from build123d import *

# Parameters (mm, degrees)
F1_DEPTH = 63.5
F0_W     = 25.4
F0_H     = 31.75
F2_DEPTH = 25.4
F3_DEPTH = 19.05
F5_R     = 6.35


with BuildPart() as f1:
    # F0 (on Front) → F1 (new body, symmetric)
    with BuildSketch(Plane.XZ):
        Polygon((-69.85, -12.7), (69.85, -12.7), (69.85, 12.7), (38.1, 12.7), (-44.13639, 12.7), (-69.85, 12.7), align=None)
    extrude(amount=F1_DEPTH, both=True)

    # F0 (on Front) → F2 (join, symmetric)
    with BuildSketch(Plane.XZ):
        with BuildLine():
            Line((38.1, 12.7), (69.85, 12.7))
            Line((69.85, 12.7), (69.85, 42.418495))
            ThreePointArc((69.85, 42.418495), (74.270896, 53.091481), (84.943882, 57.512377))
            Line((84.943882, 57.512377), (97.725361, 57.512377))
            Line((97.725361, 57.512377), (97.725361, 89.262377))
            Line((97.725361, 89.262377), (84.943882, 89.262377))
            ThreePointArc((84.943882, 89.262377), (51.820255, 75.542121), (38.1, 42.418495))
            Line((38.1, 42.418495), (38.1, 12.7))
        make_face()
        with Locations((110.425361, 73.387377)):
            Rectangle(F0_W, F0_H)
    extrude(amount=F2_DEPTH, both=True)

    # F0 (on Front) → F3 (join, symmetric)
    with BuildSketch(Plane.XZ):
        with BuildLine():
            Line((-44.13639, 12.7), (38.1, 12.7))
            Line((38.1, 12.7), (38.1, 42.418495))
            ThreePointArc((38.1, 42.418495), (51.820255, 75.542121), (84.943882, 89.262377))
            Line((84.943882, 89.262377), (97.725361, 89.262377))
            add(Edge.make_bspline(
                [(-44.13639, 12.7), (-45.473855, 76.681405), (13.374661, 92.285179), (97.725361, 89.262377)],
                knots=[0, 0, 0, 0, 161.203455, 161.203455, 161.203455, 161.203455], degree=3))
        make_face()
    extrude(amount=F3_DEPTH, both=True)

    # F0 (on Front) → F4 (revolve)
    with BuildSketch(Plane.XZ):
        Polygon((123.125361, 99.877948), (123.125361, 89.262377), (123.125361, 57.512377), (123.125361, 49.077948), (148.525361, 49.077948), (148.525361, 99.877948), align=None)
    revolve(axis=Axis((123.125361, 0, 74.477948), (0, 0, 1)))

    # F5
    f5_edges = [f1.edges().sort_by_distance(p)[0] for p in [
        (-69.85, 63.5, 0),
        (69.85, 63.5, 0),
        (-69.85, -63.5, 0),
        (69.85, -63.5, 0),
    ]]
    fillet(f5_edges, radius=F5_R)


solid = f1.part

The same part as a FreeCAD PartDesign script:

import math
import FreeCAD as App
import Part
import Sketcher

V = App.Vector
Q = App.Units.Quantity


def edges_at(feature, points):
    """Names of the edges that pass closest to the given points."""
    edges = feature.Shape.Edges
    near = lambda p: min(range(len(edges)), key=lambda i: edges[i].distToShape(Part.Vertex(*p))[0])
    return sorted({f"Edge{near(p) + 1}" for p in points})


def add_polygon(sketch, points):
    """Adds a closed chain of lines whose ends are joined by coincident constraints."""
    first, n = sketch.GeometryCount, len(points)
    for a, b in zip(points, points[1:] + points[:1]):
        sketch.addGeometry(Part.LineSegment(App.Vector(*a, 0), App.Vector(*b, 0)), False)
    for i in range(n):
        sketch.addConstraint(Sketcher.Constraint("Coincident", first + i, 2, first + (i + 1) % n, 1))

doc = App.newDocument("Part")
body = doc.addObject("PartDesign::Body", "Body")

# Sketch on XZ plane
sketch1 = doc.addObject("Sketcher::SketchObject", "Sketch")
body.addObject(sketch1)
sketch1.AttachmentSupport = (doc.XZ_Plane, [""])
sketch1.MapMode = "FlatFace"
add_polygon(sketch1, [(-70, -13), (70, -13), (70, 13), (-70, 13)])  # lines 0-3
sketch1.addConstraint([
    Sketcher.Constraint("Horizontal", 0),
    Sketcher.Constraint("Vertical", 1),
    Sketcher.Constraint("Horizontal", 2),
    Sketcher.Constraint("Vertical", 3),
    Sketcher.Constraint("Symmetric", 0, 2, 2, 2, -1, 1),
    Sketcher.Constraint("DistanceY", 1, 1, 1, 2, Q("1 in")),
    Sketcher.Constraint("DistanceX", 0, 1, 0, 2, Q("5.5 in")),
])
pad1 = doc.addObject("PartDesign::Pad", "Pad")
body.addObject(pad1)
pad1.Profile = sketch1
pad1.Length = Q("5 in")
pad1.Midplane = True

# Sketch on XZ plane
sketch2 = doc.addObject("Sketcher::SketchObject", "Sketch001")
body.addObject(sketch2)
sketch2.AttachmentSupport = (doc.XZ_Plane, [""])
sketch2.MapMode = "FlatFace"
sketch2.addGeometry([
    Part.LineSegment(V(38, 13, 0), V(70, 13, 0)),  # 0
    Part.LineSegment(V(70, 13, 0), V(70, 42, 0)),  # 1
    Part.ArcOfCircle(Part.Circle(V(85, 42, 0), V(0, 0, 1), 15), math.radians(90), math.radians(180)),  # 2
    Part.LineSegment(V(85, 58, 0), V(123, 58, 0)),  # 3
    Part.LineSegment(V(123, 58, 0), V(123, 89, 0)),  # 4
    Part.LineSegment(V(123, 89, 0), V(85, 89, 0)),  # 5
    Part.ArcOfCircle(Part.Circle(V(85, 42, 0), V(0, 0, 1), 47), math.radians(90), math.radians(180)),  # 6
    Part.LineSegment(V(38, 42, 0), V(38, 13, 0)),  # 7
], False)
sketch2.addConstraint([
    Sketcher.Constraint("Coincident", 0, 2, 1, 1),
    Sketcher.Constraint("Tangent", 1, 2, 2, 2),
    Sketcher.Constraint("Tangent", 2, 1, 3, 1),
    Sketcher.Constraint("Coincident", 3, 2, 4, 1),
    Sketcher.Constraint("Coincident", 4, 2, 5, 1),
    Sketcher.Constraint("Tangent", 5, 2, 6, 1),
    Sketcher.Constraint("Tangent", 6, 2, 7, 1),
    Sketcher.Constraint("Coincident", 7, 2, 0, 1),
    Sketcher.Constraint("Horizontal", 0),
    Sketcher.Constraint("Vertical", 1),
    Sketcher.Constraint("Horizontal", 3),
    Sketcher.Constraint("Vertical", 4),
    Sketcher.Constraint("Horizontal", 5),
    Sketcher.Constraint("Vertical", 7),
    Sketcher.Constraint("Coincident", 6, 3, 2, 3),
    Sketcher.Constraint("DistanceX", 0, 1, 0, 2, Q("1.25 in")),
    Sketcher.Constraint("DistanceY", -1, 1, 0, 2, Q("0.5 in")),
    Sketcher.Constraint("DistanceX", -1, 1, 6, 2, Q("1.5 in")),
    Sketcher.Constraint("Radius", 2, Q("15.093883 mm")),
    Sketcher.Constraint("DistanceX", 3, 1, 3, 2, Q("38.181479 mm")),
    Sketcher.Constraint("DistanceY", 1, 1, 1, 2, Q("29.718495 mm")),
])
pad2 = doc.addObject("PartDesign::Pad", "Pad001")
body.addObject(pad2)
pad2.Profile = sketch2
pad2.Length = Q("2 in")
pad2.Midplane = True

# Sketch on XZ plane
sketch3 = doc.addObject("Sketcher::SketchObject", "Sketch002")
body.addObject(sketch3)
sketch3.AttachmentSupport = (doc.XZ_Plane, [""])
sketch3.MapMode = "FlatFace"
sketch3.addGeometry([
    Part.LineSegment(V(-44.13639, 12.7, 0), V(38.1, 12.7, 0)),  # 0
    Part.LineSegment(V(38.1, 12.7, 0), V(38.1, 42.418495, 0)),  # 1
    Part.ArcOfCircle(Part.Circle(V(84.943882, 42.418495, 0), V(0, 0, 1), 46.843882), math.radians(90), math.radians(180)),  # 2
    Part.LineSegment(V(84.943882, 89.262377, 0), V(97.725361, 89.262377, 0)),  # 3
    Part.BSplineCurve([V(-44.13639, 12.7, 0), V(-45.473855, 76.681405, 0), V(13.374661, 92.285179, 0), V(97.725361, 89.262377, 0)], [4, 4], [0, 161.203455], False, 3, [1, 1, 1, 1], False),  # 4
], False)
sketch3.addConstraint([
    Sketcher.Constraint("Block", 4),
    Sketcher.Constraint("Coincident", 0, 2, 1, 1),
    Sketcher.Constraint("Tangent", 1, 2, 2, 2),
    Sketcher.Constraint("Tangent", 2, 1, 3, 1),
    Sketcher.Constraint("Coincident", 3, 2, 4, 2),
    Sketcher.Constraint("Coincident", 4, 1, 0, 1),
    Sketcher.Constraint("Horizontal", 0),
    Sketcher.Constraint("Vertical", 1),
    Sketcher.Constraint("Horizontal", 3),
    Sketcher.Constraint("DistanceX", -1, 1, 0, 2, Q("1.5 in")),
    Sketcher.Constraint("Radius", 2, Q("46.843882 mm")),
])
pad3 = doc.addObject("PartDesign::Pad", "Pad002")
body.addObject(pad3)
pad3.Profile = sketch3
pad3.Length = Q("1.5 in")
pad3.Midplane = True

# Sketch on XZ plane
sketch4 = doc.addObject("Sketcher::SketchObject", "Sketch003")
body.addObject(sketch4)
sketch4.AttachmentSupport = (doc.XZ_Plane, [""])
sketch4.MapMode = "FlatFace"
add_polygon(sketch4, [(123, 100), (123, 49), (149, 49), (149, 100)])  # lines 0-3
sketch4.addGeometry(Part.LineSegment(V(123, 49, 0), V(123, 100, 0)), True)  # axis
sketch4.addConstraint([
    Sketcher.Constraint("Vertical", 0),
    Sketcher.Constraint("Horizontal", 1),
    Sketcher.Constraint("Vertical", 2),
    Sketcher.Constraint("Horizontal", 3),
    Sketcher.Constraint("Vertical", 4),
    Sketcher.Constraint("Coincident", 4, 1, 0, 2),
    Sketcher.Constraint("Horizontal", 2, 2, 4, 2),
    Sketcher.Constraint("DistanceX", 1, 1, 1, 2, Q("1 in")),
    Sketcher.Constraint("DistanceY", 0, 2, 0, 1, Q("2 in")),
    Sketcher.Constraint("DistanceX", -1, 1, 0, 2, Q("123.125361 mm")),
    Sketcher.Constraint("DistanceY", -1, 1, 2, 2, Q("99.877948 mm")),
])
revolution = doc.addObject("PartDesign::Revolution", "Revolution")
body.addObject(revolution)
revolution.Profile = sketch4
revolution.ReferenceAxis = (sketch4, ["Axis0"])
revolution.Angle = 360
doc.recompute()

fillet = doc.addObject("PartDesign::Fillet", "Fillet")
body.addObject(fillet)
fillet.Base = (revolution, edges_at(revolution, [
    (-69.85, 63.5, 0),
    (69.85, 63.5, 0),
    (-69.85, -63.5, 0),
    (69.85, -63.5, 0),
]))
fillet.Radius = Q("0.25 in")

doc.recompute()
